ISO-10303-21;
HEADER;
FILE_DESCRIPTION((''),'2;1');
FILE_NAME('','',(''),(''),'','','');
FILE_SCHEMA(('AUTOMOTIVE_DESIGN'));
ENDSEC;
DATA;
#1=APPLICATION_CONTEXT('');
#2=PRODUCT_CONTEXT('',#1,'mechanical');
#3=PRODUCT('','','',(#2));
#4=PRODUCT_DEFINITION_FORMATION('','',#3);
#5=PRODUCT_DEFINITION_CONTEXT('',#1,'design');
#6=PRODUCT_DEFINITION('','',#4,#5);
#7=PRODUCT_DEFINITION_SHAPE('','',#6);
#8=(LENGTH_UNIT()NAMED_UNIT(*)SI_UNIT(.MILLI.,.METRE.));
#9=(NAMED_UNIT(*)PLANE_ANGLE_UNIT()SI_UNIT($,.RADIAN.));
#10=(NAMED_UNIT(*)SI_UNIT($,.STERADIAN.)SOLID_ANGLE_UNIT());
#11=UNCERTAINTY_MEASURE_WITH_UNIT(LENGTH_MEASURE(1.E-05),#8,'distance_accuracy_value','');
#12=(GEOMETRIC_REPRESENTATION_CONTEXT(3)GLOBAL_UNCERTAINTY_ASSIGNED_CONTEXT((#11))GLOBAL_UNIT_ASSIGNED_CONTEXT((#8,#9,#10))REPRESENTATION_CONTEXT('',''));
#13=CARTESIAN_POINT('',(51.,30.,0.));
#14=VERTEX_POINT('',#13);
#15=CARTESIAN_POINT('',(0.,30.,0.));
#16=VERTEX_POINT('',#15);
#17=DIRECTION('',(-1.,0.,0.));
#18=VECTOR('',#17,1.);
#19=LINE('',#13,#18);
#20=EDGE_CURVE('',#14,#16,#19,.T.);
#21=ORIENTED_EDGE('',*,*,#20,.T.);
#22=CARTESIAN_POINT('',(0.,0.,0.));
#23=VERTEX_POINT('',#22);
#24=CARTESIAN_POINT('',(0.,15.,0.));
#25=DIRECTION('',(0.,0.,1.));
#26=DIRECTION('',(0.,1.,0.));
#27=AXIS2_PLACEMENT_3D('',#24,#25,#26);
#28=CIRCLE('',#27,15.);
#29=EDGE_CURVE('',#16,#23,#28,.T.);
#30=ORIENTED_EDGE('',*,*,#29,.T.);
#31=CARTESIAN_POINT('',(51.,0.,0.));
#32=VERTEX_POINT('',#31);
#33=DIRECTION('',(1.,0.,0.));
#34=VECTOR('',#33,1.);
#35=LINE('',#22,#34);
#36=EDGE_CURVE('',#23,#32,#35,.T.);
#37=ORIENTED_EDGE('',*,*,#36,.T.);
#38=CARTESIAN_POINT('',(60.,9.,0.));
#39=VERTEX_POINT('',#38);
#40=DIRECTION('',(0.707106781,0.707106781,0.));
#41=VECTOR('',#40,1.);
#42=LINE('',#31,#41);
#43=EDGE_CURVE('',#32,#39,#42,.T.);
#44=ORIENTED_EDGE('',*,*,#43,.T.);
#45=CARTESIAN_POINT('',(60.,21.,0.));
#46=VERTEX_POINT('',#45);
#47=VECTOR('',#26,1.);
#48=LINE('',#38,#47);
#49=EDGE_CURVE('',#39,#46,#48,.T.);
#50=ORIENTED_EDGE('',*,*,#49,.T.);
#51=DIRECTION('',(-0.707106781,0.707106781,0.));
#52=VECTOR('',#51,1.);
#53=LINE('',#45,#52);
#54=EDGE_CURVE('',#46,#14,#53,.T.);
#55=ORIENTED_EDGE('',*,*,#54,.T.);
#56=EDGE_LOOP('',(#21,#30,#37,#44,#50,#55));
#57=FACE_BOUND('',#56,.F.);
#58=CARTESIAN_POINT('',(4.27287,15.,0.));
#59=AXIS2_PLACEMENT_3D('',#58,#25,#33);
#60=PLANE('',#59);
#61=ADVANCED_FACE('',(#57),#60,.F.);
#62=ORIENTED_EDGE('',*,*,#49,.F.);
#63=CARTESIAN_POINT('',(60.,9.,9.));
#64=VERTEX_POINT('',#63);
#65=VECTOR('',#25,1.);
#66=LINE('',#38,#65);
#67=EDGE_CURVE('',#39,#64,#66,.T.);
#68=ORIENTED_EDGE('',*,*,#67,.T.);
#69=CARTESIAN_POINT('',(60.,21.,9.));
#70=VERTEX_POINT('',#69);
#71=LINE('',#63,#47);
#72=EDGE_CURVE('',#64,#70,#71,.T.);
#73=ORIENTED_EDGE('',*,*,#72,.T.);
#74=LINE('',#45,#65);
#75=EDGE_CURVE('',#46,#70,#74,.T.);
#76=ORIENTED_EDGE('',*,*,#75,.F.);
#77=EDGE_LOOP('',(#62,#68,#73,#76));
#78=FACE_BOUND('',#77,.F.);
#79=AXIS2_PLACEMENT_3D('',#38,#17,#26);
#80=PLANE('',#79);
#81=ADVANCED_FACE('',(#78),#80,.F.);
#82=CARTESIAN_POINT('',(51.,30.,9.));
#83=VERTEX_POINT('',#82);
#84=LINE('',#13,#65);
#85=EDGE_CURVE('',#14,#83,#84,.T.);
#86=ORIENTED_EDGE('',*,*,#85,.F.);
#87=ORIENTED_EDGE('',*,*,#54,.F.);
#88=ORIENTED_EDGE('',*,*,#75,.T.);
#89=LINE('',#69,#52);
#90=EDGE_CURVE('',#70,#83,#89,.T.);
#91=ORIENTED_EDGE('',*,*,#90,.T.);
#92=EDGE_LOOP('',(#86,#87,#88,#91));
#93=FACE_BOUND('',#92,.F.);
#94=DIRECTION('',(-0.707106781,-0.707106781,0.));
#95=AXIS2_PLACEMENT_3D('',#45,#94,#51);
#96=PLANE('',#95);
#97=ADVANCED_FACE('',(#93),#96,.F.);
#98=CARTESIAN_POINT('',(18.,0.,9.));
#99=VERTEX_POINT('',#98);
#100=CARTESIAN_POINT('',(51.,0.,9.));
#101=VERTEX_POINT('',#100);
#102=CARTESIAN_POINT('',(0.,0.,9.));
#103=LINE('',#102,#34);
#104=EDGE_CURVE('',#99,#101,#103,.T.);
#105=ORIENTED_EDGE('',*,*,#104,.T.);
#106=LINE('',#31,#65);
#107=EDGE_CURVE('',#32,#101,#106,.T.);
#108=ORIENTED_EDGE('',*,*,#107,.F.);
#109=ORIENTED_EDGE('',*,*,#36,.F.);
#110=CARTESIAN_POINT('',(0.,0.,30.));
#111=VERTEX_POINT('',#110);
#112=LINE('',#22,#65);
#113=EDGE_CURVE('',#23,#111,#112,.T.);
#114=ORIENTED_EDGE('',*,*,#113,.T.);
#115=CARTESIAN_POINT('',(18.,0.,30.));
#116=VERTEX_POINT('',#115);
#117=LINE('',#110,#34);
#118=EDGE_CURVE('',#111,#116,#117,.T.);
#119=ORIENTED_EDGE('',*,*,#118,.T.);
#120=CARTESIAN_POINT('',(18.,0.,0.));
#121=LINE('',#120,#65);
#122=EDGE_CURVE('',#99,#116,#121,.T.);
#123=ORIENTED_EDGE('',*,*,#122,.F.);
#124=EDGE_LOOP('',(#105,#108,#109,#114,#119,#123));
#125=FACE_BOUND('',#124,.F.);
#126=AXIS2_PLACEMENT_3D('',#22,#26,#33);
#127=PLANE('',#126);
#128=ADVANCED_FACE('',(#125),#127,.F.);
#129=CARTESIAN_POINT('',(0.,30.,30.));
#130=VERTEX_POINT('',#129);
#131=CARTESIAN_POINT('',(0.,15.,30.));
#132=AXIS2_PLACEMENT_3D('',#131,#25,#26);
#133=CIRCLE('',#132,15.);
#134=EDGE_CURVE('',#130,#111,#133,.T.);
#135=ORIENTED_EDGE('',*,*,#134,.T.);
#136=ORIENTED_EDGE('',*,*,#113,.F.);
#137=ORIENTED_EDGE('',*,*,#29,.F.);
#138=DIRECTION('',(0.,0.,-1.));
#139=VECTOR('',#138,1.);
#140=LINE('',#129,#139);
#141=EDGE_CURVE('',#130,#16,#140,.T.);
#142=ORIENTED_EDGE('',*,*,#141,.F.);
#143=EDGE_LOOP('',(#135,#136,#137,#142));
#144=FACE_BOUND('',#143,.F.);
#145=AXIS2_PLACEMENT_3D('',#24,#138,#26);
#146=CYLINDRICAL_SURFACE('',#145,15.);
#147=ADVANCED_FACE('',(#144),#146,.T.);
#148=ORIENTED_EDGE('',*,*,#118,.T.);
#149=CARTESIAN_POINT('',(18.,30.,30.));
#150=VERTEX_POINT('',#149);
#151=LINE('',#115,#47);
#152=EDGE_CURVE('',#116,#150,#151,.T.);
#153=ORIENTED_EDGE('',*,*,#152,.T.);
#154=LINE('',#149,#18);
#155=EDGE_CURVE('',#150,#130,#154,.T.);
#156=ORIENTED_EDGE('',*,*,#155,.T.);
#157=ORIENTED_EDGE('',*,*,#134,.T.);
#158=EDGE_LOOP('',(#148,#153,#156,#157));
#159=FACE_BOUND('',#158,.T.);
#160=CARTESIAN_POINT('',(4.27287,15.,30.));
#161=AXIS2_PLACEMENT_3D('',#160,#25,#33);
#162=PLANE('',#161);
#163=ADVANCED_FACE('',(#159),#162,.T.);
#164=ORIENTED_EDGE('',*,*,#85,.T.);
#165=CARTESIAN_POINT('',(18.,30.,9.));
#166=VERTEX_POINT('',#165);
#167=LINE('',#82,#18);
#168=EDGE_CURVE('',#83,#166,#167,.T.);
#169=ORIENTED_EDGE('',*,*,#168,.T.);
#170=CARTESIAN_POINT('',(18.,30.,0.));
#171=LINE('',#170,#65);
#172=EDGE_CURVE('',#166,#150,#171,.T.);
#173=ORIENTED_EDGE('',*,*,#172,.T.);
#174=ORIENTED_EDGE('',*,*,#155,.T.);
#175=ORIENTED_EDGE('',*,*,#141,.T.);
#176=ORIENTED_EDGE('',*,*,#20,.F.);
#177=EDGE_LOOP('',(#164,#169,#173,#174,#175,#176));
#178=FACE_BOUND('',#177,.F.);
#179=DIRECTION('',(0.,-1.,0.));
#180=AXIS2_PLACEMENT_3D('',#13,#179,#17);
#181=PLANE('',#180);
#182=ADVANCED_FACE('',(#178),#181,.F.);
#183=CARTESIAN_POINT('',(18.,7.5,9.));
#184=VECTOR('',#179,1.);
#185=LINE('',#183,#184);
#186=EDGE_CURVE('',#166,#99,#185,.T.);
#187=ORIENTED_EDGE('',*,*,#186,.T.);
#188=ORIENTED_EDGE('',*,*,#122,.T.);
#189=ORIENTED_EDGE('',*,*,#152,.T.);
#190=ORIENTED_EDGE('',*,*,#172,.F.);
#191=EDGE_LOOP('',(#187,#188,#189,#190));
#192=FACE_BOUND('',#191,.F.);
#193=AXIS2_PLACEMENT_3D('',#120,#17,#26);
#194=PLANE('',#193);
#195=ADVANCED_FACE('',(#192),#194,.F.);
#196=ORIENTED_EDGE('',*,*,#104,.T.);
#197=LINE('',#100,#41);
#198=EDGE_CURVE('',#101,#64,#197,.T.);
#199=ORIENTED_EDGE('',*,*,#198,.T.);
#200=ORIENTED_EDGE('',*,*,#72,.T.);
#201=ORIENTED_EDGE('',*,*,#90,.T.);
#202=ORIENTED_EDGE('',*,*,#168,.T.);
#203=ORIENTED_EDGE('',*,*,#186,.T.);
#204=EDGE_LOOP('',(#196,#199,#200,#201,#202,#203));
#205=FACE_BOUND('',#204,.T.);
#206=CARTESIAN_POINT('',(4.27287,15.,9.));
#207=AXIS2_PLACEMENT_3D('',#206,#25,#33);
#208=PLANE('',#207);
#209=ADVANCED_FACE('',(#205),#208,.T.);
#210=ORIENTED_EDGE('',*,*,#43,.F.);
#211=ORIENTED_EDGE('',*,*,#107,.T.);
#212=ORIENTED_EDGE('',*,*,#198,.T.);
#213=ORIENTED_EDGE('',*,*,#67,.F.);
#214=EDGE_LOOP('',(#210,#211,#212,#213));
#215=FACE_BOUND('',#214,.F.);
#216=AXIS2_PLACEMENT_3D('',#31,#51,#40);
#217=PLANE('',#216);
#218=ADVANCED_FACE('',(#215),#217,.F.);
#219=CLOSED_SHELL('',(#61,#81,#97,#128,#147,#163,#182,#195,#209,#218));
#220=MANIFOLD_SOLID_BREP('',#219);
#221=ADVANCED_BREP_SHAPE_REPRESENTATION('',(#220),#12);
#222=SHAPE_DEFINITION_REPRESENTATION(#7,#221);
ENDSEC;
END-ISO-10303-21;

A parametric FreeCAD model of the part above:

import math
import FreeCAD as App
import Part
import Sketcher
Q = App.Units.Quantity

doc = App.newDocument("Part")
body = doc.addObject("PartDesign::Body", "Body")

sketch1 = body.newObject("Sketcher::SketchObject", "Sketch")
sketch1.AttachmentSupport = (doc.getObject("XY_Plane"), [""])
sketch1.MapMode = "FlatFace"
sketch1.addGeometry(Part.ArcOfCircle(Part.Circle(App.Vector(0, 15, 0), App.Vector(0, 0, 1), 15), math.radians(90), math.radians(270)), False)
sketch1.addGeometry(Part.LineSegment(App.Vector(0, 0, 0), App.Vector(51, 0, 0)), False)
sketch1.addGeometry(Part.LineSegment(App.Vector(51, 0, 0), App.Vector(60, 9, 0)), False)
sketch1.addGeometry(Part.LineSegment(App.Vector(60, 9, 0), App.Vector(60, 21, 0)), False)
sketch1.addGeometry(Part.LineSegment(App.Vector(60, 21, 0), App.Vector(51, 30, 0)), False)
sketch1.addGeometry(Part.LineSegment(App.Vector(51, 30, 0), App.Vector(0, 30, 0)), False)
sketch1.addConstraint(Sketcher.Constraint("Tangent", 0, 2, 1, 1))
sketch1.addConstraint(Sketcher.Constraint("Coincident", 1, 2, 2, 1))
sketch1.addConstraint(Sketcher.Constraint("Coincident", 2, 2, 3, 1))
sketch1.addConstraint(Sketcher.Constraint("Coincident", 3, 2, 4, 1))
sketch1.addConstraint(Sketcher.Constraint("Coincident", 4, 2, 5, 1))
sketch1.addConstraint(Sketcher.Constraint("Tangent", 5, 2, 0, 1))
sketch1.addConstraint(Sketcher.Constraint("Horizontal", 1))
sketch1.addConstraint(Sketcher.Constraint("Vertical", 3))
sketch1.addConstraint(Sketcher.Constraint("Horizontal", 5))
sketch1.addConstraint(Sketcher.Constraint("Coincident", 0, 2, -1, 1))
sketch1.addConstraint(Sketcher.Constraint("Perpendicular", 2, 4))
sketch1.addConstraint(Sketcher.Constraint("Vertical", 1, 2, 4, 2))
sketch1.addConstraint(Sketcher.Constraint("Equal", 2, 4))
sketch1.addConstraint(Sketcher.Constraint("Radius", 0, Q("15 mm")))
sketch1.addConstraint(Sketcher.Constraint("DistanceX", 1, 1, 1, 2, Q("51 mm")))
sketch1.addConstraint(Sketcher.Constraint("DistanceY", 3, 1, 3, 2, Q("12 mm")))
pad1 = body.newObject("PartDesign::Pad", "Pad")
pad1.Profile = sketch1
pad1.Length = 9

sketch2 = body.newObject("Sketcher::SketchObject", "Sketch001")
sketch2.AttachmentSupport = (doc.getObject("XY_Plane"), [""])
sketch2.MapMode = "FlatFace"
sketch2.addGeometry(Part.LineSegment(App.Vector(18, 30, 0), App.Vector(0, 30, 0)), False)
sketch2.addGeometry(Part.ArcOfCircle(Part.Circle(App.Vector(0, 15, 0), App.Vector(0, 0, 1), 15), math.radians(90), math.radians(270)), False)
sketch2.addGeometry(Part.LineSegment(App.Vector(0, 0, 0), App.Vector(18, 0, 0)), False)
sketch2.addGeometry(Part.LineSegment(App.Vector(18, 0, 0), App.Vector(18, 30, 0)), False)
sketch2.addConstraint(Sketcher.Constraint("Tangent", 0, 2, 1, 1))
sketch2.addConstraint(Sketcher.Constraint("Tangent", 1, 2, 2, 1))
sketch2.addConstraint(Sketcher.Constraint("Coincident", 2, 2, 3, 1))
sketch2.addConstraint(Sketcher.Constraint("Coincident", 3, 2, 0, 1))
sketch2.addConstraint(Sketcher.Constraint("Horizontal", 0))
sketch2.addConstraint(Sketcher.Constraint("Horizontal", 2))
sketch2.addConstraint(Sketcher.Constraint("Vertical", 3))
sketch2.addConstraint(Sketcher.Constraint("Coincident", 1, 2, -1, 1))
sketch2.addConstraint(Sketcher.Constraint("Radius", 1, Q("15 mm")))
sketch2.addConstraint(Sketcher.Constraint("DistanceX", 0, 2, 0, 1, Q("18 mm")))
pad2 = body.newObject("PartDesign::Pad", "Pad001")
pad2.Profile = sketch2
pad2.Length = 30

doc.recompute()
